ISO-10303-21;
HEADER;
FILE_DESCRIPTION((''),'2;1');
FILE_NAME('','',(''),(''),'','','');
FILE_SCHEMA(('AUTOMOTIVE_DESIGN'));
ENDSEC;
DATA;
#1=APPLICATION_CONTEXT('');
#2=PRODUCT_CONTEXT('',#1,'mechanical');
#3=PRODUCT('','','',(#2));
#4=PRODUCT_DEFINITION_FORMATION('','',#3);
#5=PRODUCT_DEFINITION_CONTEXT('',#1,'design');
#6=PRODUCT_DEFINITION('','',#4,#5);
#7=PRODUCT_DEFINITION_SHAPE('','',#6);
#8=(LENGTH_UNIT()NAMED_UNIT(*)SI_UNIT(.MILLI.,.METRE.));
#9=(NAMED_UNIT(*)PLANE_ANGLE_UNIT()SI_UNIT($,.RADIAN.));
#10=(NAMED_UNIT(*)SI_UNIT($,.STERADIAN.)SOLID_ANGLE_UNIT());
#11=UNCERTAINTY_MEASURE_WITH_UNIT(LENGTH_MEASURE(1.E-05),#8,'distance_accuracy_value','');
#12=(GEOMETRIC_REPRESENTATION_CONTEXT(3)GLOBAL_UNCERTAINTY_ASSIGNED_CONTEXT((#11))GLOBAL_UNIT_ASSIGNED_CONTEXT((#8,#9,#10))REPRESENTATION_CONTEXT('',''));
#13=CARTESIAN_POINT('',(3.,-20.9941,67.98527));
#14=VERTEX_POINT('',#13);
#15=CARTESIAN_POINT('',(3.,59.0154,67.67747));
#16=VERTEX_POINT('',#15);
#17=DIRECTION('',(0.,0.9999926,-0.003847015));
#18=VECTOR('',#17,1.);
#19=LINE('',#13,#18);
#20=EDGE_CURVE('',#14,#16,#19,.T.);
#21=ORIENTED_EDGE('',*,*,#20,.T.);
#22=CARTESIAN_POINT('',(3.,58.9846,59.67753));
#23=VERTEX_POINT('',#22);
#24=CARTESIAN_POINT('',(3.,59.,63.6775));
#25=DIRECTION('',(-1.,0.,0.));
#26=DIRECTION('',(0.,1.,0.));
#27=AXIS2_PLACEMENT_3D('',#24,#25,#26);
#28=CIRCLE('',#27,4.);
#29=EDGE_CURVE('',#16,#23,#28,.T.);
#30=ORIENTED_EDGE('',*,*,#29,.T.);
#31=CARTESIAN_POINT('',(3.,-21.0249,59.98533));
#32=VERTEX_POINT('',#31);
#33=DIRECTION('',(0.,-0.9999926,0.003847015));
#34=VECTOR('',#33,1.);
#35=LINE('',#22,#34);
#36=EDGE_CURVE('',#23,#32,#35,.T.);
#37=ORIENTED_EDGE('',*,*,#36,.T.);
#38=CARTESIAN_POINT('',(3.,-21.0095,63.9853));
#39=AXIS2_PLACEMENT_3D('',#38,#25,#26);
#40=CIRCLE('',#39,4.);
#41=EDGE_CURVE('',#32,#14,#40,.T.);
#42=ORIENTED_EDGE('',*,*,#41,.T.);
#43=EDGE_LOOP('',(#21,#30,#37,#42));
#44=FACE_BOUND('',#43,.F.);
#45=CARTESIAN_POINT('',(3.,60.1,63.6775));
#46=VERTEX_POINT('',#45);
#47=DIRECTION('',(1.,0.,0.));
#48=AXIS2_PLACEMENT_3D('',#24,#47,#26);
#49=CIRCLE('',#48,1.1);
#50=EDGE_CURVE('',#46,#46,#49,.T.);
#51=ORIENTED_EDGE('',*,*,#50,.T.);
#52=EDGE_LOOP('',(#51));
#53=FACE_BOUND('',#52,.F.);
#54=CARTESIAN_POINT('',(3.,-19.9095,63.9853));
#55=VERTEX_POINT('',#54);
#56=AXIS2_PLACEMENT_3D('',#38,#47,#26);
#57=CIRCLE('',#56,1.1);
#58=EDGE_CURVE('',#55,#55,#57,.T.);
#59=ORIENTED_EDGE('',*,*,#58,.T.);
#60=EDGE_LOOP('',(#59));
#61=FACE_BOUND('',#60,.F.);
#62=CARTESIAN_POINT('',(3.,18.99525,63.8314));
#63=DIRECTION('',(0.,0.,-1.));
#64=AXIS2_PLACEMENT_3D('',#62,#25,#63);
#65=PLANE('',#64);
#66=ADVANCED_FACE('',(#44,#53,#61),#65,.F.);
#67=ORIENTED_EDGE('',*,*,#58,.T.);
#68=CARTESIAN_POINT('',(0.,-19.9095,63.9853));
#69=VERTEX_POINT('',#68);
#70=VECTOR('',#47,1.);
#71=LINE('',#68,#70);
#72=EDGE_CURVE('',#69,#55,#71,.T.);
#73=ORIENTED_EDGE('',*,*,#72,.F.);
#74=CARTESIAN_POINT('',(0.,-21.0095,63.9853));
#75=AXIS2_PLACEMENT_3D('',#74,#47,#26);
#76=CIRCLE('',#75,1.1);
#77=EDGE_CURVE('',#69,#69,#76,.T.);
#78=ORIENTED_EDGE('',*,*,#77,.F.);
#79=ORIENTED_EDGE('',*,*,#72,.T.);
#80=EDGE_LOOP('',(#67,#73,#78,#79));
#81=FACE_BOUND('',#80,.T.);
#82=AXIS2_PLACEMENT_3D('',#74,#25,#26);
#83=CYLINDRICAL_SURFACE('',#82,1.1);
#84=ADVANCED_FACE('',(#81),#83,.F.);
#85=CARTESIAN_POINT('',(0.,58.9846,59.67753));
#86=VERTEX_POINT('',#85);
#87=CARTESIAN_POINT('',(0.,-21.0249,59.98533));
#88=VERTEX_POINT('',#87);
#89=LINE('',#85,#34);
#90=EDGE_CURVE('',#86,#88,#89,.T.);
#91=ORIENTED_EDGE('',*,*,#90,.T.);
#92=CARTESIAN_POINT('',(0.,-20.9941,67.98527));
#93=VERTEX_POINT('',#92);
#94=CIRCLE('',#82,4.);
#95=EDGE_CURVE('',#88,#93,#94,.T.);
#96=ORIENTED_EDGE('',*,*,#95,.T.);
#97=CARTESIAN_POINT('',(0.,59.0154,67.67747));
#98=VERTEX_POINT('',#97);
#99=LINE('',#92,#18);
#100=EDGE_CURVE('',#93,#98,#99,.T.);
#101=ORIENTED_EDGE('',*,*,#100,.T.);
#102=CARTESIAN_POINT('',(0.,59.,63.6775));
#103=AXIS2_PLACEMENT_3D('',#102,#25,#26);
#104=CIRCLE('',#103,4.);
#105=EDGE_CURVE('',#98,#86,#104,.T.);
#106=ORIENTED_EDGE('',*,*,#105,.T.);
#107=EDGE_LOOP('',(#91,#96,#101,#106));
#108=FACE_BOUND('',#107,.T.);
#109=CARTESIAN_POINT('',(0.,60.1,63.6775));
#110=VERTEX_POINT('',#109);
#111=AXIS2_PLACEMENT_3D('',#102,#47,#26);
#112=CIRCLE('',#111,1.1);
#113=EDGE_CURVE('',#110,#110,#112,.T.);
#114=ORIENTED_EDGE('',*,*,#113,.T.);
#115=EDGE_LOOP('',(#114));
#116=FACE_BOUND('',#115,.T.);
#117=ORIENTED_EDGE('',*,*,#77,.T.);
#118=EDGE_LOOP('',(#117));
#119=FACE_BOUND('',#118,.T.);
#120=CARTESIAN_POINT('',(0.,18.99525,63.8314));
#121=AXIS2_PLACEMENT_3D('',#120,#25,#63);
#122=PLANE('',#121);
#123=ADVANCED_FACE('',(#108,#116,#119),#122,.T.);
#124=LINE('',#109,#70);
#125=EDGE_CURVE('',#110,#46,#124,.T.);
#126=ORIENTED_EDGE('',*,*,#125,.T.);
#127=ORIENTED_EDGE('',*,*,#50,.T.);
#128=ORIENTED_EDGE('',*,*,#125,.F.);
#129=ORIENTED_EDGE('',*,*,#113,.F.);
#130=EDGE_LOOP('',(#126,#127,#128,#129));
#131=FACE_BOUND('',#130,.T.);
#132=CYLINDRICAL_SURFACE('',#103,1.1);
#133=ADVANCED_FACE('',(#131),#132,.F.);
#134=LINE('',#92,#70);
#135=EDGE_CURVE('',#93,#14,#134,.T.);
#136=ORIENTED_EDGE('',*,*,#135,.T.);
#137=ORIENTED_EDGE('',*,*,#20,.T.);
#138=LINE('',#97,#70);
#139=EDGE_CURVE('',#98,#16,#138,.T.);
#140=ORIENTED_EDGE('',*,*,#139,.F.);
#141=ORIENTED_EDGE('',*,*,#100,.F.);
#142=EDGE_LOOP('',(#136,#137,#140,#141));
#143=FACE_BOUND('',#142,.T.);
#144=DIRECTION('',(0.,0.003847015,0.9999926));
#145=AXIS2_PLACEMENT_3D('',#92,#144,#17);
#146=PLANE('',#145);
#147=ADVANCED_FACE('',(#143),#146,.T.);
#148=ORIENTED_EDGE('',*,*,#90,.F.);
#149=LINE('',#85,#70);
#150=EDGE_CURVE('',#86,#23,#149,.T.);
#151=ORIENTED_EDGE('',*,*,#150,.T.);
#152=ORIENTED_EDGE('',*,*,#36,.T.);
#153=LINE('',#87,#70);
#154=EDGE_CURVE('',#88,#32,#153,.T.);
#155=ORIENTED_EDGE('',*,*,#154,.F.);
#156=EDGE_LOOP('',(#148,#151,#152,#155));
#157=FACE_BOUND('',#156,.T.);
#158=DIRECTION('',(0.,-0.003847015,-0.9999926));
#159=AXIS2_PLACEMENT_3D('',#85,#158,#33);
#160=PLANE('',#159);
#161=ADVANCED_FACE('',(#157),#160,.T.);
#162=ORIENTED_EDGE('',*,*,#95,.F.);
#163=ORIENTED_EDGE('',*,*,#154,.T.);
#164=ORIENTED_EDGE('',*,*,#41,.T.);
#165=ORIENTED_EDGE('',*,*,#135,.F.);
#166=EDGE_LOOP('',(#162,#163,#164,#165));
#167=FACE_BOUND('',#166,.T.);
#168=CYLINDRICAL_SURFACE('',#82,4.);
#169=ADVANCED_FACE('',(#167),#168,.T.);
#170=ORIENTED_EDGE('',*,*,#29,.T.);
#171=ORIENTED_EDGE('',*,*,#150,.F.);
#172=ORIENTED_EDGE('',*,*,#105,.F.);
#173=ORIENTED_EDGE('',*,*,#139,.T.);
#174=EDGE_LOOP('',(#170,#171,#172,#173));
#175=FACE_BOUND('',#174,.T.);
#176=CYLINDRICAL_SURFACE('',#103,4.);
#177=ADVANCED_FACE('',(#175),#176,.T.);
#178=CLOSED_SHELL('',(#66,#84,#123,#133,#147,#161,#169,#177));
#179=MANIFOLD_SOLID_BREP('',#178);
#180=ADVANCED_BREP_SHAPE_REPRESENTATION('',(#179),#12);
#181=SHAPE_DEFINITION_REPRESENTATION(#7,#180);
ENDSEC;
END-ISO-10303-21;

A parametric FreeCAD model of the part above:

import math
import FreeCAD as App
import Part
import Sketcher
Q = App.Units.Quantity

doc = App.newDocument("Part")
params = doc.addObject("Spreadsheet::Sheet", "Params")
for row, (alias, value) in enumerate([
    ("sketch1_radius", "4 mm"),
    ("sketch1_diameter", "2.2 mm"),
    ("sketch1_length", "80.01 mm"),
    ("pad1_length", "3 mm"),
], start=1):
    params.set(f"A{row}", alias)
    params.set(f"B{row}", "=" + value)
    params.setAlias(f"B{row}", alias)

body = doc.addObject("PartDesign::Body", "Body")

# Sketch on YZ plane
sketch1 = body.newObject("Sketcher::SketchObject", "Sketch")
sketch1.AttachmentSupport = (doc.getObject("YZ_Plane"), [""])
sketch1.MapMode = "FlatFace"
sketch1.addGeometry(Part.LineSegment(App.Vector(-21, 60, 0), App.Vector(59, 59.7, 0)), False)
sketch1.addGeometry(Part.ArcOfCircle(Part.Circle(App.Vector(59, 63.7, 0), App.Vector(0, 0, 1), 4), math.radians(-90), math.radians(90)), False)
sketch1.addGeometry(Part.LineSegment(App.Vector(59, 67.7, 0), App.Vector(-21, 68, 0)), False)
sketch1.addGeometry(Part.ArcOfCircle(Part.Circle(App.Vector(-21, 64, 0), App.Vector(0, 0, 1), 4), math.radians(90), math.radians(270)), False)
sketch1.addGeometry(Part.Circle(App.Vector(59, 63.7, 0), App.Vector(0, 0, 1), 1.1), False)
sketch1.addGeometry(Part.Circle(App.Vector(-21, 64, 0), App.Vector(0, 0, 1), 1.1), False)
sketch1.addConstraint(Sketcher.Constraint("Tangent", 0, 2, 1, 1))
sketch1.addConstraint(Sketcher.Constraint("Tangent", 1, 2, 2, 1))
sketch1.addConstraint(Sketcher.Constraint("Tangent", 2, 2, 3, 1))
sketch1.addConstraint(Sketcher.Constraint("Tangent", 3, 2, 0, 1))
sketch1.addConstraint(Sketcher.Constraint("Coincident", 4, 3, 1, 3))
sketch1.addConstraint(Sketcher.Constraint("Coincident", 5, 3, 3, 3))
sketch1.addConstraint(Sketcher.Constraint("Equal", 1, 3))
sketch1.addConstraint(Sketcher.Constraint("Equal", 4, 5))
sketch1.addConstraint(Sketcher.Constraint("Radius", 1, Q("4 mm")))
sketch1.addConstraint(Sketcher.Constraint("Diameter", 4, Q("2.2 mm")))
sketch1.addConstraint(Sketcher.Constraint("DistanceX", -1, 1, 1, 3, Q("59 mm")))
sketch1.addConstraint(Sketcher.Constraint("Angle", 0, Q("-0.2204 deg")))
sketch1.addConstraint(Sketcher.Constraint("Distance", 0, Q("80.01 mm")))
sketch1.addConstraint(Sketcher.Constraint("DistanceY", -1, 1, 1, 3, Q("63.6775 mm")))
sketch1.setExpression("Constraints[8]", "Params.sketch1_radius")
sketch1.setExpression("Constraints[9]", "Params.sketch1_diameter")
sketch1.setExpression("Constraints[12]", "Params.sketch1_length")
pad1 = body.newObject("PartDesign::Pad", "Pad")
pad1.Profile = sketch1
pad1.setExpression("Length", "Params.pad1_length")

doc.recompute()
